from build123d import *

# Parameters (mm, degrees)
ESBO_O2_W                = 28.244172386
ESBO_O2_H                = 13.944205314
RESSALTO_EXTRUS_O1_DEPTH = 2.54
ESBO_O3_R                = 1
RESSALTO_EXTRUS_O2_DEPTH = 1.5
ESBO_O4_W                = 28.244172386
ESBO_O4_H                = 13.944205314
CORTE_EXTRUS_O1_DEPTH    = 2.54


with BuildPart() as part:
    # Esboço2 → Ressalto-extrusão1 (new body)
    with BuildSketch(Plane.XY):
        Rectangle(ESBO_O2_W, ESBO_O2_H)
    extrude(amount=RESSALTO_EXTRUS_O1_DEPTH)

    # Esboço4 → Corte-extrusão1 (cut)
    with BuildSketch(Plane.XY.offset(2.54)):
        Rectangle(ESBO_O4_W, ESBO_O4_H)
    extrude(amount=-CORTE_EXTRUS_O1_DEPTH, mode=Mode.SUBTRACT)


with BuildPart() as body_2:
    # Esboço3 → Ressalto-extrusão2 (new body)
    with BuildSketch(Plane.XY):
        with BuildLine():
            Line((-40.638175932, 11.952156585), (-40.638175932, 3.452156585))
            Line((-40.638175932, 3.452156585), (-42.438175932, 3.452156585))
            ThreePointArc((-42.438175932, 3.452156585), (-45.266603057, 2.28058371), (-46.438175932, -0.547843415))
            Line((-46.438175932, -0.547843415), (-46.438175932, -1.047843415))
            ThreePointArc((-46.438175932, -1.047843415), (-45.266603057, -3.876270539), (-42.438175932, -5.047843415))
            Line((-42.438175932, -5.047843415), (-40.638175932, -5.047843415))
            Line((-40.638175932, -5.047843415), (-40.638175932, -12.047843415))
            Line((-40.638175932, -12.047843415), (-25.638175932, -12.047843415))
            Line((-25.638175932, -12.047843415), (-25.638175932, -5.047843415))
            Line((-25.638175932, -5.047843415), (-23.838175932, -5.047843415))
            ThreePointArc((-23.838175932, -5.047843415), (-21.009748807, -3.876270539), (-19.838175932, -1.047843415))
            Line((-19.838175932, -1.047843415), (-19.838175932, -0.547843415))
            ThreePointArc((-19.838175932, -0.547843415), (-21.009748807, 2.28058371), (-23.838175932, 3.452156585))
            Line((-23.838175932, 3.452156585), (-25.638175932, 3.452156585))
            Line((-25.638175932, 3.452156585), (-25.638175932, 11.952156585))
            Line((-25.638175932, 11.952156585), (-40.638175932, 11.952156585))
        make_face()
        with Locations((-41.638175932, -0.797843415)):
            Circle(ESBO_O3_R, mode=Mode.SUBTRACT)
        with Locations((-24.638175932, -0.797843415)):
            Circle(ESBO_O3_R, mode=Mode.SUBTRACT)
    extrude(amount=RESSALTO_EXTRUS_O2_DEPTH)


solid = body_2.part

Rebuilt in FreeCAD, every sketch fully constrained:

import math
import FreeCAD as App
import Part
import Sketcher

V = App.Vector

doc = App.newDocument("Part")
body = doc.addObject("PartDesign::Body", "Body")

sketch1 = doc.addObject("Sketcher::SketchObject", "Sketch")
body.addObject(sketch1)
sketch1.AttachmentSupport = (doc.XY_Plane, [""])
sketch1.MapMode = "FlatFace"
sketch1.addGeometry([
    Part.LineSegment(V(-14, 7, 0), V(-14, -7, 0)),
    Part.LineSegment(V(-14, -7, 0), V(14, -7, 0)),
    Part.LineSegment(V(14, -7, 0), V(14, 7, 0)),
    Part.LineSegment(V(14, 7, 0), V(-14, 7, 0)),
], False)
sketch1.addConstraint([
    Sketcher.Constraint("Coincident", 0, 2, 1, 1),
    Sketcher.Constraint("Coincident", 1, 2, 2, 1),
    Sketcher.Constraint("Coincident", 2, 2, 3, 1),
    Sketcher.Constraint("Coincident", 3, 2, 0, 1),
    Sketcher.Constraint("Vertical", 0),
    Sketcher.Constraint("Horizontal", 1),
    Sketcher.Constraint("Vertical", 2),
    Sketcher.Constraint("Horizontal", 3),
    Sketcher.Constraint("Symmetric", 0, 2, 2, 2, -1, 1),
    Sketcher.Constraint("DistanceX", 1, 1, 1, 2, 28.244172),
    Sketcher.Constraint("DistanceY", 0, 2, 0, 1, 13.944205),
])
pad1 = doc.addObject("PartDesign::Pad", "Pad")
body.addObject(pad1)
pad1.Profile = sketch1
pad1.Length = 2.54

sketch2 = doc.addObject("Sketcher::SketchObject", "Sketch001")
body.addObject(sketch2)
sketch2.AttachmentSupport = (doc.XY_Plane, [""])
sketch2.MapMode = "FlatFace"
sketch2.AttachmentOffset = App.Placement(V(0, 0, 2.54), App.Rotation())
sketch2.addGeometry([
    Part.LineSegment(V(-14, 7, 0), V(-14, -7, 0)),
    Part.LineSegment(V(-14, -7, 0), V(14, -7, 0)),
    Part.LineSegment(V(14, -7, 0), V(14, 7, 0)),
    Part.LineSegment(V(14, 7, 0), V(-14, 7, 0)),
], False)
sketch2.addConstraint([
    Sketcher.Constraint("Coincident", 0, 2, 1, 1),
    Sketcher.Constraint("Coincident", 1, 2, 2, 1),
    Sketcher.Constraint("Coincident", 2, 2, 3, 1),
    Sketcher.Constraint("Coincident", 3, 2, 0, 1),
    Sketcher.Constraint("Vertical", 0),
    Sketcher.Constraint("Horizontal", 1),
    Sketcher.Constraint("Vertical", 2),
    Sketcher.Constraint("Horizontal", 3),
    Sketcher.Constraint("Symmetric", 0, 2, 2, 2, -1, 1),
    Sketcher.Constraint("DistanceX", 1, 1, 1, 2, 28.244172),
    Sketcher.Constraint("DistanceY", 0, 2, 0, 1, 13.944205),
])
pocket1 = doc.addObject("PartDesign::Pocket", "Pocket")
body.addObject(pocket1)
pocket1.Profile = sketch2
pocket1.Length = 2.54
body2 = doc.addObject("PartDesign::Body", "Body001")

sketch3 = doc.addObject("Sketcher::SketchObject", "Sketch002")
body2.addObject(sketch3)
sketch3.AttachmentSupport = (doc.getObject("XY_Plane001"), [""])
sketch3.MapMode = "FlatFace"
sketch3.addGeometry([
    Part.LineSegment(V(-40.6, 12, 0), V(-40.6, 3.5, 0)),
    Part.LineSegment(V(-40.6, 3.5, 0), V(-42.4, 3.5, 0)),
    Part.ArcOfCircle(Part.Circle(V(-42.4, -0.5, 0), V(0, 0, 1), 4), math.radians(90), math.radians(180)),
    Part.LineSegment(V(-46.4, -0.5, 0), V(-46.4, -1, 0)),
    Part.ArcOfCircle(Part.Circle(V(-42.4, -1, 0), V(0, 0, 1), 4), math.radians(-180), math.radians(-90)),
    Part.LineSegment(V(-42.4, -5, 0), V(-40.6, -5, 0)),
    Part.LineSegment(V(-40.6, -5, 0), V(-40.6, -12, 0)),
    Part.LineSegment(V(-40.6, -12, 0), V(-25.6, -12, 0)),
    Part.LineSegment(V(-25.6, -12, 0), V(-25.6, -5, 0)),
    Part.LineSegment(V(-25.6, -5, 0), V(-23.8, -5, 0)),
    Part.ArcOfCircle(Part.Circle(V(-23.8, -1, 0), V(0, 0, 1), 4), math.radians(-90), math.radians(0)),
    Part.LineSegment(V(-19.8, -1, 0), V(-19.8, -0.5, 0)),
    Part.ArcOfCircle(Part.Circle(V(-23.8, -0.5, 0), V(0, 0, 1), 4), math.radians(0), math.radians(90)),
    Part.LineSegment(V(-23.8, 3.5, 0), V(-25.6, 3.5, 0)),
    Part.LineSegment(V(-25.6, 3.5, 0), V(-25.6, 12, 0)),
    Part.LineSegment(V(-25.6, 12, 0), V(-40.6, 12, 0)),
    Part.Circle(V(-41.6, -0.8, 0), V(0, 0, 1), 1),
    Part.Circle(V(-24.6, -0.8, 0), V(0, 0, 1), 1),
], False)
sketch3.addConstraint([
    Sketcher.Constraint("Coincident", 0, 2, 1, 1),
    Sketcher.Constraint("Tangent", 1, 2, 2, 1),
    Sketcher.Constraint("Tangent", 2, 2, 3, 1),
    Sketcher.Constraint("Tangent", 3, 2, 4, 1),
    Sketcher.Constraint("Tangent", 4, 2, 5, 1),
    Sketcher.Constraint("Coincident", 5, 2, 6, 1),
    Sketcher.Constraint("Coincident", 6, 2, 7, 1),
    Sketcher.Constraint("Coincident", 7, 2, 8, 1),
    Sketcher.Constraint("Coincident", 8, 2, 9, 1),
    Sketcher.Constraint("Tangent", 9, 2, 10, 1),
    Sketcher.Constraint("Tangent", 10, 2, 11, 1),
    Sketcher.Constraint("Tangent", 11, 2, 12, 1),
    Sketcher.Constraint("Tangent", 12, 2, 13, 1),
    Sketcher.Constraint("Coincident", 13, 2, 14, 1),
    Sketcher.Constraint("Coincident", 14, 2, 15, 1),
    Sketcher.Constraint("Coincident", 15, 2, 0, 1),
    Sketcher.Constraint("Vertical", 0),
    Sketcher.Constraint("Horizontal", 1),
    Sketcher.Constraint("Vertical", 3),
    Sketcher.Constraint("Horizontal", 5),
    Sketcher.Constraint("Vertical", 6),
    Sketcher.Constraint("Horizontal", 7),
    Sketcher.Constraint("Vertical", 8),
    Sketcher.Constraint("Horizontal", 9),
    Sketcher.Constraint("Vertical", 11),
    Sketcher.Constraint("Horizontal", 13),
    Sketcher.Constraint("Vertical", 14),
    Sketcher.Constraint("Horizontal", 15),
    Sketcher.Constraint("Equal", 2, 4),
    Sketcher.Constraint("Equal", 4, 10),
    Sketcher.Constraint("Equal", 10, 12),
    Sketcher.Constraint("Equal", 16, 17),
    Sketcher.Constraint("Horizontal", 4, 3, 10, 3),
    Sketcher.Constraint("Horizontal", 2, 3, 12, 3),
    Sketcher.Constraint("Horizontal", 16, 3, 17, 3),
    Sketcher.Constraint("Vertical", 0, 2, 5, 2),
    Sketcher.Constraint("Vertical", 8, 2, 13, 2),
    Sketcher.Constraint("Equal", 5, 9),
    Sketcher.Constraint("Diameter", 16, 2.0),
    Sketcher.Constraint("Radius", 2, 4.0),
    Sketcher.Constraint("DistanceX", 7, 1, 7, 2, 15.0),
    Sketcher.Constraint("DistanceY", 6, 2, 6, 1, 7.0),
    Sketcher.Constraint("DistanceX", 1, 2, 1, 1, 1.8),
    Sketcher.Constraint("DistanceY", 0, 2, 0, 1, 8.5),
    Sketcher.Constraint("DistanceY", 3, 2, 3, 1, 0.5),
    Sketcher.Constraint("DistanceX", 16, 3, 17, 3, 17.0),
    Sketcher.Constraint("DistanceX", 16, 3, 0, 2, 1.0),
    Sketcher.Constraint("DistanceY", 4, 3, 16, 3, 0.25),
    Sketcher.Constraint("DistanceX", 2, 3, -1, 1, 42.438176),
    Sketcher.Constraint("DistanceY", 2, 3, -1, 1, 0.547843),
])
pad2 = doc.addObject("PartDesign::Pad", "Pad001")
body2.addObject(pad2)
pad2.Profile = sketch3
pad2.Length = 1.5

doc.recompute()
